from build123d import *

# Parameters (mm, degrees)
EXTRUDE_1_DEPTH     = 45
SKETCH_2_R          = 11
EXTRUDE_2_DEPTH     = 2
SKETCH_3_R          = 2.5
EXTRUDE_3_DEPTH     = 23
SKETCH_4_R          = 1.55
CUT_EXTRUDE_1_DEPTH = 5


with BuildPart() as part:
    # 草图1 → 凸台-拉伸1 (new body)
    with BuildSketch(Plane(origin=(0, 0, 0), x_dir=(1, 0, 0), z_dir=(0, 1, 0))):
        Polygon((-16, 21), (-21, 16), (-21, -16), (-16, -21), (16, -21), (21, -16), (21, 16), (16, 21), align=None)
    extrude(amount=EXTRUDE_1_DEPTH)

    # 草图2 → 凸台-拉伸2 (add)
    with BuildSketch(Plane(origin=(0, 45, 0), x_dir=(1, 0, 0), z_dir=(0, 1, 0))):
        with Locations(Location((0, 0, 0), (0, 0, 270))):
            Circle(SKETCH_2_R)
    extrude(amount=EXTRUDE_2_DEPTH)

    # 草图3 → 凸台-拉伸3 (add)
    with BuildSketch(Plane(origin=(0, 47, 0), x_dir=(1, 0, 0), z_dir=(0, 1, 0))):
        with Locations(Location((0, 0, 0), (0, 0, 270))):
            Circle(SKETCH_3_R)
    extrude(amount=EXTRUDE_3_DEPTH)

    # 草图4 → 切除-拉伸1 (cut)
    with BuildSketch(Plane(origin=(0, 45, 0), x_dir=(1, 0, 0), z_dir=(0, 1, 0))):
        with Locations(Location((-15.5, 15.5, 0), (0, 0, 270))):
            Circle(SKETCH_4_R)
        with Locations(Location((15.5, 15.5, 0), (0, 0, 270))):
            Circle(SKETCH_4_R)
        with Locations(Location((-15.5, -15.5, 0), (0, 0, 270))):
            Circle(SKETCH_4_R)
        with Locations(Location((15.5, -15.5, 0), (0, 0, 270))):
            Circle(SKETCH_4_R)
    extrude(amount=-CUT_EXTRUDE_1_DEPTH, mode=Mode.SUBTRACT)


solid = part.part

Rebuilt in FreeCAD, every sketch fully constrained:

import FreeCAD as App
import Part
import Sketcher

doc = App.newDocument("Part")
body = doc.addObject("PartDesign::Body", "Body")

sketch1 = body.newObject("Sketcher::SketchObject", "Sketch")
sketch1.AttachmentSupport = (doc.getObject("XZ_Plane"), [""])
sketch1.MapMode = "FlatFace"
sketch1.addGeometry([
    Part.LineSegment(App.Vector(-16, -21, 0), App.Vector(-21, -16, 0)),
    Part.LineSegment(App.Vector(-21, -16, 0), App.Vector(-21, 16, 0)),
    Part.LineSegment(App.Vector(-21, 16, 0), App.Vector(-16, 21, 0)),
    Part.LineSegment(App.Vector(-16, 21, 0), App.Vector(16, 21, 0)),
    Part.LineSegment(App.Vector(16, 21, 0), App.Vector(21, 16, 0)),
    Part.LineSegment(App.Vector(21, 16, 0), App.Vector(21, -16, 0)),
    Part.LineSegment(App.Vector(21, -16, 0), App.Vector(16, -21, 0)),
    Part.LineSegment(App.Vector(16, -21, 0), App.Vector(-16, -21, 0)),
], False)
sketch1.addConstraint([
    Sketcher.Constraint("Coincident", 0, 2, 1, 1),
    Sketcher.Constraint("Coincident", 1, 2, 2, 1),
    Sketcher.Constraint("Coincident", 2, 2, 3, 1),
    Sketcher.Constraint("Coincident", 3, 2, 4, 1),
    Sketcher.Constraint("Coincident", 4, 2, 5, 1),
    Sketcher.Constraint("Coincident", 5, 2, 6, 1),
    Sketcher.Constraint("Coincident", 6, 2, 7, 1),
    Sketcher.Constraint("Coincident", 7, 2, 0, 1),
    Sketcher.Constraint("Vertical", 1),
    Sketcher.Constraint("Horizontal", 3),
    Sketcher.Constraint("Vertical", 5),
    Sketcher.Constraint("Horizontal", 7),
    Sketcher.Constraint("Symmetric", 0, 2, 4, 2, -1, 1),
    Sketcher.Constraint("Symmetric", 2, 2, 6, 2, -1, 1),
    Sketcher.Constraint("Perpendicular", 0, 2),
    Sketcher.Constraint("Perpendicular", 2, 4),
    Sketcher.Constraint("Perpendicular", 4, 6),
    Sketcher.Constraint("Horizontal", 1, 2, 4, 2),
    Sketcher.Constraint("Vertical", 3, 2, 6, 2),
    Sketcher.Constraint("Equal", 7, 1),
    Sketcher.Constraint("DistanceX", 3, 1, 3, 2, 32.0),
    Sketcher.Constraint("DistanceX", 0, 2, -1, 1, 21.0),
])
pad1 = body.newObject("PartDesign::Pad", "Pad")
pad1.Profile = sketch1
pad1.Length = 45
pad1.Reversed = True

sketch2 = body.newObject("Sketcher::SketchObject", "Sketch001")
sketch2.AttachmentSupport = (doc.getObject("XZ_Plane"), [""])
sketch2.MapMode = "FlatFace"
sketch2.AttachmentOffset = App.Placement(App.Vector(0, 0, -45), App.Rotation())
sketch2.addGeometry(Part.Circle(App.Vector(0, 0, 0), App.Vector(0, 0, 1), 11), False)
sketch2.addConstraint([
    Sketcher.Constraint("Coincident", 0, 3, -1, 1),
    Sketcher.Constraint("Diameter", 0, 22.0),
])
pad2 = body.newObject("PartDesign::Pad", "Pad001")
pad2.Profile = sketch2
pad2.Length = 2
pad2.Reversed = True

sketch3 = body.newObject("Sketcher::SketchObject", "Sketch002")
sketch3.AttachmentSupport = (doc.getObject("XZ_Plane"), [""])
sketch3.MapMode = "FlatFace"
sketch3.AttachmentOffset = App.Placement(App.Vector(0, 0, -47), App.Rotation())
sketch3.addGeometry(Part.Circle(App.Vector(0, 0, 0), App.Vector(0, 0, 1), 2.5), False)
sketch3.addConstraint([
    Sketcher.Constraint("Coincident", 0, 3, -1, 1),
    Sketcher.Constraint("Diameter", 0, 5.0),
])
pad3 = body.newObject("PartDesign::Pad", "Pad002")
pad3.Profile = sketch3
pad3.Length = 23
pad3.Reversed = True

sketch4 = body.newObject("Sketcher::SketchObject", "Sketch003")
sketch4.AttachmentSupport = (doc.getObject("XZ_Plane"), [""])
sketch4.MapMode = "FlatFace"
sketch4.AttachmentOffset = App.Placement(App.Vector(0, 0, -45), App.Rotation())
sketch4.addGeometry([
    Part.Circle(App.Vector(-15.5, -15.5, 0), App.Vector(0, 0, 1), 1.6),
    Part.Circle(App.Vector(15.5, -15.5, 0), App.Vector(0, 0, 1), 1.6),
    Part.Circle(App.Vector(-15.5, 15.5, 0), App.Vector(0, 0, 1), 1.6),
    Part.Circle(App.Vector(15.5, 15.5, 0), App.Vector(0, 0, 1), 1.6),
], False)
sketch4.addConstraint([
    Sketcher.Constraint("Equal", 0, 1),
    Sketcher.Constraint("Equal", 1, 2),
    Sketcher.Constraint("Equal", 2, 3),
    Sketcher.Constraint("Symmetric", 1, 3, 2, 3, -1, 1),
    Sketcher.Constraint("Symmetric", 0, 3, 3, 3, -1, 1),
    Sketcher.Constraint("Symmetric", 0, 3, 1, 3, -2),
    Sketcher.Constraint("Diameter", 0, 3.1),
    Sketcher.Constraint("DistanceX", 0, 3, 1, 3, 31.0),
    Sketcher.Constraint("DistanceY", 0, 3, 2, 3, 31.0),
])
pocket1 = body.newObject("PartDesign::Pocket", "Pocket")
pocket1.Profile = sketch4
pocket1.Length = 5
pocket1.Reversed = True

doc.recompute()
